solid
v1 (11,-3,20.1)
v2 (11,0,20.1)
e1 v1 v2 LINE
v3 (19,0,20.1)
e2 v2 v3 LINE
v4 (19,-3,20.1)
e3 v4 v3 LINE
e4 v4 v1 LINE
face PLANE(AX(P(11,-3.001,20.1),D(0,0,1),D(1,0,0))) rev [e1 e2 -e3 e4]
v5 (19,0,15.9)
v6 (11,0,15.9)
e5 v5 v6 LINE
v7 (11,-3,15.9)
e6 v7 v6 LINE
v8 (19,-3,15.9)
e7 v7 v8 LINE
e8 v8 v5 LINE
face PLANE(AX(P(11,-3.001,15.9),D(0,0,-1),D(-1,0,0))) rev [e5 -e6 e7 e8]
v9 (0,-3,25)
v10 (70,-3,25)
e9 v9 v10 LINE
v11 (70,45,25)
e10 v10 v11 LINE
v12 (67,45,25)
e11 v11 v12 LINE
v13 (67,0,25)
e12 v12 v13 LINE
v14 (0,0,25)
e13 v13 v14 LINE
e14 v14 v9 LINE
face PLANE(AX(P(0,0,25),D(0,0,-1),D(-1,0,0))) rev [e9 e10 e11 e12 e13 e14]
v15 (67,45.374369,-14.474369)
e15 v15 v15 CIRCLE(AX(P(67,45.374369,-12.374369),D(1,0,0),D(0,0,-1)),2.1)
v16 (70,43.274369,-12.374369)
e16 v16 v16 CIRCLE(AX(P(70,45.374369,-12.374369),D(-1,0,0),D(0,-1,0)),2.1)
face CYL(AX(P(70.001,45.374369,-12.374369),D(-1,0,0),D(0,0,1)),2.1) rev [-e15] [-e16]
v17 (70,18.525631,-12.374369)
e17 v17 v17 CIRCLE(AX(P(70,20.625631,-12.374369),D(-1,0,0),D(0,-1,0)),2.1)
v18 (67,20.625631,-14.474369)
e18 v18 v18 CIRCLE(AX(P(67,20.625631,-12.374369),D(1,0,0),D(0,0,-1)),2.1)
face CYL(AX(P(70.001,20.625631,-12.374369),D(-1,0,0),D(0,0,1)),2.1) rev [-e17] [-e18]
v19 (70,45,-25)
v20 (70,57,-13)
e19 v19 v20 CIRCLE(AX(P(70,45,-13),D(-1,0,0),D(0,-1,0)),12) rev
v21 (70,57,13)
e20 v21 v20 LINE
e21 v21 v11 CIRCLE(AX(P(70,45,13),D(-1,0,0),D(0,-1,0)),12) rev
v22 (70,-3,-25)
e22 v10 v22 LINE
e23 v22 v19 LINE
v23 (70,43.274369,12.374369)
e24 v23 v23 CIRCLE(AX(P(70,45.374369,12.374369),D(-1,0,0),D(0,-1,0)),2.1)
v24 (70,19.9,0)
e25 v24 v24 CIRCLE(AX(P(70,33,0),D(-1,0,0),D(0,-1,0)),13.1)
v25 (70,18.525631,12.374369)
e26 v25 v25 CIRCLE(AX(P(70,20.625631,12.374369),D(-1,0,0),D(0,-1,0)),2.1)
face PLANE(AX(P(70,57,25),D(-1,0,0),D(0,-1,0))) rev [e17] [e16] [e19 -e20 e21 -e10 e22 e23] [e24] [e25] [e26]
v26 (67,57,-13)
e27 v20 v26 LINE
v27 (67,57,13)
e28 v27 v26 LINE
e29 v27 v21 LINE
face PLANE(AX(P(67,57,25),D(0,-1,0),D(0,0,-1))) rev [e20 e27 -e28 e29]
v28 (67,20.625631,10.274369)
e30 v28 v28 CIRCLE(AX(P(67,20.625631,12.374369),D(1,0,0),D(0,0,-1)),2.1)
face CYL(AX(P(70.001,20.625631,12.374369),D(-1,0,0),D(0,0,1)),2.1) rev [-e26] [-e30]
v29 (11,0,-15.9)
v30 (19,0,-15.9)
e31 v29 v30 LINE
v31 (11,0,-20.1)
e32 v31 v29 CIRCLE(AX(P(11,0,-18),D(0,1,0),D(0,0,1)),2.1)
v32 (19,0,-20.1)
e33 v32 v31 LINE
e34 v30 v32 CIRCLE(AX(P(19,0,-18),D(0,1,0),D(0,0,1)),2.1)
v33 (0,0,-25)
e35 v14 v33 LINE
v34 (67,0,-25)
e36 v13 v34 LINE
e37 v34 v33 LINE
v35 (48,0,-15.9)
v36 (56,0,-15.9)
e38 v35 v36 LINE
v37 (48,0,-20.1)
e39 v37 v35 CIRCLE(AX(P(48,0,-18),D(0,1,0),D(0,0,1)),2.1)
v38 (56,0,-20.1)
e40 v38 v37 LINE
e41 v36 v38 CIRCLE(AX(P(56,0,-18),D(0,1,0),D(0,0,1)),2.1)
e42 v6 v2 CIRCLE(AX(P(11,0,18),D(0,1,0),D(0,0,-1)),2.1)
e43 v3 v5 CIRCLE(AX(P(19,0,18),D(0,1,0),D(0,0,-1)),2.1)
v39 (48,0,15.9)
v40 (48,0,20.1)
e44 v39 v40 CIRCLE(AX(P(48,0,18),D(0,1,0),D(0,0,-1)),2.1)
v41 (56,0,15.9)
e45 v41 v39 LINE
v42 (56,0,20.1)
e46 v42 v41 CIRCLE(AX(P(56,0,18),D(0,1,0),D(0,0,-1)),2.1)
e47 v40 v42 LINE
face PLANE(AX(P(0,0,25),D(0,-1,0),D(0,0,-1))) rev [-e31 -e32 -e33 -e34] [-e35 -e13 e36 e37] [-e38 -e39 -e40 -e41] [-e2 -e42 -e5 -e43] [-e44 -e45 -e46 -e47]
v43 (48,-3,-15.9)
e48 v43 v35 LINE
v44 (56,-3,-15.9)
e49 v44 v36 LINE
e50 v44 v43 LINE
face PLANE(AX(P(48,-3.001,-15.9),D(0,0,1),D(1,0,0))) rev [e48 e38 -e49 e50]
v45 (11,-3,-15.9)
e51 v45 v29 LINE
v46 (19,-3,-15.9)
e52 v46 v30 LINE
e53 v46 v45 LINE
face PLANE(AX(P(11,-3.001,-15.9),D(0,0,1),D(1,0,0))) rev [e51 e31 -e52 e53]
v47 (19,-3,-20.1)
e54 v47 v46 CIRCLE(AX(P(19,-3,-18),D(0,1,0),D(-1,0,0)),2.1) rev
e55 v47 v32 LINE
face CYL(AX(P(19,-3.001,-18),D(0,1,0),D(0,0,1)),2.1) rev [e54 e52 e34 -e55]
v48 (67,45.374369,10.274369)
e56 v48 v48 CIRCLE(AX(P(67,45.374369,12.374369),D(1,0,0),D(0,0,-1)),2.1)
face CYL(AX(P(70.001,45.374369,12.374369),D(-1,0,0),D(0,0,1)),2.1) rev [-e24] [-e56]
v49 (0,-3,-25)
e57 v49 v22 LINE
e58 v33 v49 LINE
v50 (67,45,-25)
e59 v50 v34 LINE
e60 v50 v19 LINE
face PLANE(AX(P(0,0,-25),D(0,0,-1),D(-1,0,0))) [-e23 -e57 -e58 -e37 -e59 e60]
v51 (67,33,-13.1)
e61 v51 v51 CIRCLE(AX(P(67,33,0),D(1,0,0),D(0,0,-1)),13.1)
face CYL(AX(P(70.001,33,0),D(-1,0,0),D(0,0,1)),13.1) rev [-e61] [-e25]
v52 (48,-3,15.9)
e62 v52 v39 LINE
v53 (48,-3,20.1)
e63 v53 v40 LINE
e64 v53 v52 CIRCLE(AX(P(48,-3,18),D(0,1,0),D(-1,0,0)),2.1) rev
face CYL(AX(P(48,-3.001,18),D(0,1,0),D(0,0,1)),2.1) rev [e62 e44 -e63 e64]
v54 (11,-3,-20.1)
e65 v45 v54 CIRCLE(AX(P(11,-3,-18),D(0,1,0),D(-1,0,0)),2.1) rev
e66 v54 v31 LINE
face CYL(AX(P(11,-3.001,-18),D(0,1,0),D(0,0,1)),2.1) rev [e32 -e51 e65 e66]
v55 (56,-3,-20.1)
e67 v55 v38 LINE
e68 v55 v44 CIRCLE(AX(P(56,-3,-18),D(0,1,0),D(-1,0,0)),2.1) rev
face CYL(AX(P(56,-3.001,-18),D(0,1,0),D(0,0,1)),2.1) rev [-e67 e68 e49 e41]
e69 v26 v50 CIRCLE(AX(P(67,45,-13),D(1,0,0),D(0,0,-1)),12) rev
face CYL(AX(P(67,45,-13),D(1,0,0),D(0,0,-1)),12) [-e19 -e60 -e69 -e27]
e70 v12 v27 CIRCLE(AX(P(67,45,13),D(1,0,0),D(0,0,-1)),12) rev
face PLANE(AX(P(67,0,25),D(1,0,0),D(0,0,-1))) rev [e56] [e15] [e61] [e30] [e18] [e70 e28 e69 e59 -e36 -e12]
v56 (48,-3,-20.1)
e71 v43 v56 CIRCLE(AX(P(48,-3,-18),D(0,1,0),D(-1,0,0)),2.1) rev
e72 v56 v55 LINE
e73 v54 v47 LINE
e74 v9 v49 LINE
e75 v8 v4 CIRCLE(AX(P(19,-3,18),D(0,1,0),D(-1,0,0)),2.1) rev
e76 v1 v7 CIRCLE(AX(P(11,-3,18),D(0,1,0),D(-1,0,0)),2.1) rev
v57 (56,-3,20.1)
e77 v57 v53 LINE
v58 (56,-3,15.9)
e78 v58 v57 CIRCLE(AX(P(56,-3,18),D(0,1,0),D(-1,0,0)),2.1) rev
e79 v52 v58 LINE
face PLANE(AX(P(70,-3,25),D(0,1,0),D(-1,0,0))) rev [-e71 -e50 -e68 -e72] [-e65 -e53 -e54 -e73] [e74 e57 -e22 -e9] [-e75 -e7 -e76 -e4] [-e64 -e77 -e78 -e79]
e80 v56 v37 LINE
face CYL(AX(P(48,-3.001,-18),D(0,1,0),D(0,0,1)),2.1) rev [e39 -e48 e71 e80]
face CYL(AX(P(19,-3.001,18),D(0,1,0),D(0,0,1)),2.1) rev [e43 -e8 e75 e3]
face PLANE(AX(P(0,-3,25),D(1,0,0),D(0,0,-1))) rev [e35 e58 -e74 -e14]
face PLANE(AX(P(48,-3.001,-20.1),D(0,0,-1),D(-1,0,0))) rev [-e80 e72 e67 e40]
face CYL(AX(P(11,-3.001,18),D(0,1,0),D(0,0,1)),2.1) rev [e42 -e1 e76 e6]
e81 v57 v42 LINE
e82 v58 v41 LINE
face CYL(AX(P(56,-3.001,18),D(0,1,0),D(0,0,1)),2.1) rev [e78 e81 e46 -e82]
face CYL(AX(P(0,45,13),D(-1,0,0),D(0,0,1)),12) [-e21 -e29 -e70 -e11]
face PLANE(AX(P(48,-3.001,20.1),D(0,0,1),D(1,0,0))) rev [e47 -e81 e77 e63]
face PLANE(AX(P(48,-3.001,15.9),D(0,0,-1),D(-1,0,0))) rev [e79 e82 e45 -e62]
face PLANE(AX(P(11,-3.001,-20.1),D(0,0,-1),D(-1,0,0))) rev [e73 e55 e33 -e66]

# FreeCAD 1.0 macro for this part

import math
import FreeCAD as App
import Part
import Sketcher
from FreeCAD import Vector


def edges_at(feature, points):
    """Names of the edges that pass closest to the given points."""
    edges = feature.Shape.Edges
    near = lambda p: min(range(len(edges)), key=lambda i: edges[i].distToShape(Part.Vertex(*p))[0])
    return sorted({f"Edge{near(p) + 1}" for p in points})

doc = App.newDocument("Part")
body = doc.addObject("PartDesign::Body", "Body")

# Sketch on XY plane
sketch1 = body.newObject("Sketcher::SketchObject", "Sketch")
sketch1.AttachmentSupport = (doc.getObject("XY_Plane"), [""])
sketch1.MapMode = "FlatFace"
sketch1.addGeometry(Part.LineSegment(Vector(67, 0, 0), Vector(0, 0, 0)), False)
sketch1.addGeometry(Part.LineSegment(Vector(0, 0, 0), Vector(0, -3, 0)), False)
sketch1.addGeometry(Part.LineSegment(Vector(0, -3, 0), Vector(70, -3, 0)), False)
sketch1.addGeometry(Part.LineSegment(Vector(70, -3, 0), Vector(70, 57, 0)), False)
sketch1.addGeometry(Part.LineSegment(Vector(70, 57, 0), Vector(67, 57, 0)), False)
sketch1.addGeometry(Part.LineSegment(Vector(67, 57, 0), Vector(67, 0, 0)), False)
sketch1.addConstraint(Sketcher.Constraint("Coincident", 0, 2, 1, 1))
sketch1.addConstraint(Sketcher.Constraint("Coincident", 1, 2, 2, 1))
sketch1.addConstraint(Sketcher.Constraint("Coincident", 2, 2, 3, 1))
sketch1.addConstraint(Sketcher.Constraint("Coincident", 3, 2, 4, 1))
sketch1.addConstraint(Sketcher.Constraint("Coincident", 4, 2, 5, 1))
sketch1.addConstraint(Sketcher.Constraint("Coincident", 5, 2, 0, 1))
sketch1.addConstraint(Sketcher.Constraint("Horizontal", 0))
sketch1.addConstraint(Sketcher.Constraint("Vertical", 1))
sketch1.addConstraint(Sketcher.Constraint("Horizontal", 2))
sketch1.addConstraint(Sketcher.Constraint("Vertical", 3))
sketch1.addConstraint(Sketcher.Constraint("Horizontal", 4))
sketch1.addConstraint(Sketcher.Constraint("Vertical", 5))
sketch1.addConstraint(Sketcher.Constraint("Coincident", 0, 2, -1, 1))
sketch1.addConstraint(Sketcher.Constraint("Equal", 4, 1))
sketch1.addConstraint(Sketcher.Constraint("DistanceX", 0, 2, 0, 1, 67.0))
sketch1.addConstraint(Sketcher.Constraint("DistanceX", 2, 1, 2, 2, 70.0))
sketch1.addConstraint(Sketcher.Constraint("DistanceY", 3, 1, 3, 2, 60.0))
pad1 = body.newObject("PartDesign::Pad", "Pad")
pad1.Profile = sketch1
pad1.Length = 50
pad1.Midplane = True

# Sketch on XZ plane
sketch2 = body.newObject("Sketcher::SketchObject", "Sketch001")
sketch2.AttachmentSupport = (doc.getObject("XZ_Plane"), [""])
sketch2.MapMode = "FlatFace"
sketch2.addGeometry(Part.LineSegment(Vector(19, -20.1, 0), Vector(11, -20.1, 0)), False)
sketch2.addGeometry(Part.ArcOfCircle(Part.Circle(Vector(11, -18, 0), Vector(0, 0, 1), 2.1), math.radians(90), math.radians(270)), False)
sketch2.addGeometry(Part.LineSegment(Vector(11, -15.9, 0), Vector(19, -15.9, 0)), False)
sketch2.addGeometry(Part.ArcOfCircle(Part.Circle(Vector(19, -18, 0), Vector(0, 0, 1), 2.1), math.radians(-90), math.radians(90)), False)
sketch2.addConstraint(Sketcher.Constraint("Tangent", 0, 2, 1, 2))
sketch2.addConstraint(Sketcher.Constraint("Tangent", 1, 1, 2, 1))
sketch2.addConstraint(Sketcher.Constraint("Tangent", 2, 2, 3, 2))
sketch2.addConstraint(Sketcher.Constraint("Tangent", 3, 1, 0, 1))
sketch2.addConstraint(Sketcher.Constraint("Horizontal", 0))
sketch2.addConstraint(Sketcher.Constraint("Horizontal", 2))
sketch2.addConstraint(Sketcher.Constraint("Radius", 1, 2.1))
sketch2.addConstraint(Sketcher.Constraint("DistanceX", 0, 2, 0, 1, 8.0))
sketch2.addConstraint(Sketcher.Constraint("DistanceX", -1, 1, 1, 3, 11.0))
sketch2.addConstraint(Sketcher.Constraint("DistanceY", 1, 3, -1, 1, 18.0))
pocket1 = body.newObject("PartDesign::Pocket", "Pocket")
pocket1.Profile = sketch2
pocket1.Type = "UpToFirst"
pocket1.Reversed = True

# Sketch on XZ plane
sketch3 = body.newObject("Sketcher::SketchObject", "Sketch002")
sketch3.AttachmentSupport = (doc.getObject("XZ_Plane"), [""])
sketch3.MapMode = "FlatFace"
sketch3.addGeometry(Part.LineSegment(Vector(56, -20.1, 0), Vector(48, -20.1, 0)), False)
sketch3.addGeometry(Part.ArcOfCircle(Part.Circle(Vector(48, -18, 0), Vector(0, 0, 1), 2.1), math.radians(90), math.radians(270)), False)
sketch3.addGeometry(Part.LineSegment(Vector(48, -15.9, 0), Vector(56, -15.9, 0)), False)
sketch3.addGeometry(Part.ArcOfCircle(Part.Circle(Vector(56, -18, 0), Vector(0, 0, 1), 2.1), math.radians(-90), math.radians(90)), False)
sketch3.addConstraint(Sketcher.Constraint("Tangent", 0, 2, 1, 2))
sketch3.addConstraint(Sketcher.Constraint("Tangent", 1, 1, 2, 1))
sketch3.addConstraint(Sketcher.Constraint("Tangent", 2, 2, 3, 2))
sketch3.addConstraint(Sketcher.Constraint("Tangent", 3, 1, 0, 1))
sketch3.addConstraint(Sketcher.Constraint("Horizontal", 0))
sketch3.addConstraint(Sketcher.Constraint("Horizontal", 2))
sketch3.addConstraint(Sketcher.Constraint("Radius", 1, 2.1))
sketch3.addConstraint(Sketcher.Constraint("DistanceX", 0, 2, 0, 1, 8.0))
sketch3.addConstraint(Sketcher.Constraint("DistanceX", -1, 1, 1, 3, 48.0))
sketch3.addConstraint(Sketcher.Constraint("DistanceY", 1, 3, -1, 1, 18.0))
pocket2 = body.newObject("PartDesign::Pocket", "Pocket001")
pocket2.Profile = sketch3
pocket2.Type = "UpToFirst"
pocket2.Reversed = True

# Sketch on XZ plane
sketch4 = body.newObject("Sketcher::SketchObject", "Sketch003")
sketch4.AttachmentSupport = (doc.getObject("XZ_Plane"), [""])
sketch4.MapMode = "FlatFace"
sketch4.addGeometry(Part.LineSegment(Vector(11, 20.1, 0), Vector(19, 20.1, 0)), False)
sketch4.addGeometry(Part.ArcOfCircle(Part.Circle(Vector(19, 18, 0), Vector(0, 0, 1), 2.1), math.radians(-90), math.radians(90)), False)
sketch4.addGeometry(Part.LineSegment(Vector(19, 15.9, 0), Vector(11, 15.9, 0)), False)
sketch4.addGeometry(Part.ArcOfCircle(Part.Circle(Vector(11, 18, 0), Vector(0, 0, 1), 2.1), math.radians(90), math.radians(270)), False)
sketch4.addConstraint(Sketcher.Constraint("Tangent", 0, 2, 1, 2))
sketch4.addConstraint(Sketcher.Constraint("Tangent", 1, 1, 2, 1))
sketch4.addConstraint(Sketcher.Constraint("Tangent", 2, 2, 3, 2))
sketch4.addConstraint(Sketcher.Constraint("Tangent", 3, 1, 0, 1))
sketch4.addConstraint(Sketcher.Constraint("Horizontal", 0))
sketch4.addConstraint(Sketcher.Constraint("Horizontal", 2))
sketch4.addConstraint(Sketcher.Constraint("Radius", 1, 2.1))
sketch4.addConstraint(Sketcher.Constraint("DistanceX", 0, 1, 0, 2, 8.0))
sketch4.addConstraint(Sketcher.Constraint("DistanceX", -1, 1, 1, 3, 19.0))
sketch4.addConstraint(Sketcher.Constraint("DistanceY", -1, 1, 1, 3, 18.0))
pocket3 = body.newObject("PartDesign::Pocket", "Pocket002")
pocket3.Profile = sketch4
pocket3.Type = "UpToFirst"
pocket3.Reversed = True

# Sketch on XZ plane
sketch5 = body.newObject("Sketcher::SketchObject", "Sketch004")
sketch5.AttachmentSupport = (doc.getObject("XZ_Plane"), [""])
sketch5.MapMode = "FlatFace"
sketch5.addGeometry(Part.LineSegment(Vector(48, 20.1, 0), Vector(56, 20.1, 0)), False)
sketch5.addGeometry(Part.ArcOfCircle(Part.Circle(Vector(56, 18, 0), Vector(0, 0, 1), 2.1), math.radians(-90), math.radians(90)), False)
sketch5.addGeometry(Part.LineSegment(Vector(56, 15.9, 0), Vector(48, 15.9, 0)), False)
sketch5.addGeometry(Part.ArcOfCircle(Part.Circle(Vector(48, 18, 0), Vector(0, 0, 1), 2.1), math.radians(90), math.radians(270)), False)
sketch5.addConstraint(Sketcher.Constraint("Tangent", 0, 2, 1, 2))
sketch5.addConstraint(Sketcher.Constraint("Tangent", 1, 1, 2, 1))
sketch5.addConstraint(Sketcher.Constraint("Tangent", 2, 2, 3, 2))
sketch5.addConstraint(Sketcher.Constraint("Tangent", 3, 1, 0, 1))
sketch5.addConstraint(Sketcher.Constraint("Horizontal", 0))
sketch5.addConstraint(Sketcher.Constraint("Horizontal", 2))
sketch5.addConstraint(Sketcher.Constraint("Radius", 1, 2.1))
sketch5.addConstraint(Sketcher.Constraint("DistanceX", 0, 1, 0, 2, 8.0))
sketch5.addConstraint(Sketcher.Constraint("DistanceX", -1, 1, 1, 3, 56.0))
sketch5.addConstraint(Sketcher.Constraint("DistanceY", -1, 1, 1, 3, 18.0))
pocket4 = body.newObject("PartDesign::Pocket", "Pocket003")
pocket4.Profile = sketch5
pocket4.Type = "UpToFirst"
pocket4.Reversed = True

# Sketch on YZ plane
sketch6 = body.newObject("Sketcher::SketchObject", "Sketch005")
sketch6.AttachmentSupport = (doc.getObject("YZ_Plane"), [""])
sketch6.MapMode = "FlatFace"
sketch6.addGeometry(Part.Circle(Vector(33, 0, 0), Vector(0, 0, 1), 13), False)
sketch6.addConstraint(Sketcher.Constraint("PointOnObject", 0, 3, -1))
sketch6.addConstraint(Sketcher.Constraint("Diameter", 0, 26.2))
sketch6.addConstraint(Sketcher.Constraint("DistanceX", -1, 1, 0, 3, 33.0))
pocket5 = body.newObject("PartDesign::Pocket", "Pocket004")
pocket5.Profile = sketch6
pocket5.Length = 70
pocket5.Reversed = True

# Sketch on YZ plane
sketch7 = body.newObject("Sketcher::SketchObject", "Sketch006")
sketch7.AttachmentSupport = (doc.getObject("YZ_Plane"), [""])
sketch7.MapMode = "FlatFace"
sketch7.addGeometry(Part.Circle(Vector(45.4, -12.4, 0), Vector(0, 0, 1), 2.1), False)
sketch7.addConstraint(Sketcher.Constraint("Diameter", 0, 4.2))
sketch7.addConstraint(Sketcher.Constraint("DistanceX", -1, 1, 0, 3, 45.374369))
sketch7.addConstraint(Sketcher.Constraint("DistanceY", 0, 3, -1, 1, 12.374369))
pocket6 = body.newObject("PartDesign::Pocket", "Pocket005")
pocket6.Profile = sketch7
pocket6.Length = 70
pocket6.Reversed = True

# Sketch on YZ plane
sketch8 = body.newObject("Sketcher::SketchObject", "Sketch007")
sketch8.AttachmentSupport = (doc.getObject("YZ_Plane"), [""])
sketch8.MapMode = "FlatFace"
sketch8.addGeometry(Part.Circle(Vector(20.6, -12.4, 0), Vector(0, 0, 1), 2.1), False)
sketch8.addConstraint(Sketcher.Constraint("Diameter", 0, 4.2))
sketch8.addConstraint(Sketcher.Constraint("DistanceX", -1, 1, 0, 3, 20.625631))
sketch8.addConstraint(Sketcher.Constraint("DistanceY", 0, 3, -1, 1, 12.374369))
pocket7 = body.newObject("PartDesign::Pocket", "Pocket006")
pocket7.Profile = sketch8
pocket7.Length = 70
pocket7.Reversed = True

# Sketch on YZ plane
sketch9 = body.newObject("Sketcher::SketchObject", "Sketch008")
sketch9.AttachmentSupport = (doc.getObject("YZ_Plane"), [""])
sketch9.MapMode = "FlatFace"
sketch9.addGeometry(Part.Circle(Vector(20.6, 12.4, 0), Vector(0, 0, 1), 2.1), False)
sketch9.addConstraint(Sketcher.Constraint("Diameter", 0, 4.2))
sketch9.addConstraint(Sketcher.Constraint("DistanceX", -1, 1, 0, 3, 20.625631))
sketch9.addConstraint(Sketcher.Constraint("DistanceY", -1, 1, 0, 3, 12.374369))
pocket8 = body.newObject("PartDesign::Pocket", "Pocket007")
pocket8.Profile = sketch9
pocket8.Length = 70
pocket8.Reversed = True

# Sketch on YZ plane
sketch10 = body.newObject("Sketcher::SketchObject", "Sketch009")
sketch10.AttachmentSupport = (doc.getObject("YZ_Plane"), [""])
sketch10.MapMode = "FlatFace"
sketch10.addGeometry(Part.Circle(Vector(45.4, 12.4, 0), Vector(0, 0, 1), 2.1), False)
sketch10.addConstraint(Sketcher.Constraint("Diameter", 0, 4.2))
sketch10.addConstraint(Sketcher.Constraint("DistanceX", -1, 1, 0, 3, 45.374369))
sketch10.addConstraint(Sketcher.Constraint("DistanceY", -1, 1, 0, 3, 12.374369))
pocket9 = body.newObject("PartDesign::Pocket", "Pocket008")
pocket9.Profile = sketch10
pocket9.Length = 70
pocket9.Reversed = True
doc.recompute()

fillet = body.newObject("PartDesign::Fillet", "Fillet")
fillet.Base = (pocket9, edges_at(pocket9, [(68.5, 57, 25), (68.5, 57, -25)]))
fillet.Radius = 12

doc.recompute()
